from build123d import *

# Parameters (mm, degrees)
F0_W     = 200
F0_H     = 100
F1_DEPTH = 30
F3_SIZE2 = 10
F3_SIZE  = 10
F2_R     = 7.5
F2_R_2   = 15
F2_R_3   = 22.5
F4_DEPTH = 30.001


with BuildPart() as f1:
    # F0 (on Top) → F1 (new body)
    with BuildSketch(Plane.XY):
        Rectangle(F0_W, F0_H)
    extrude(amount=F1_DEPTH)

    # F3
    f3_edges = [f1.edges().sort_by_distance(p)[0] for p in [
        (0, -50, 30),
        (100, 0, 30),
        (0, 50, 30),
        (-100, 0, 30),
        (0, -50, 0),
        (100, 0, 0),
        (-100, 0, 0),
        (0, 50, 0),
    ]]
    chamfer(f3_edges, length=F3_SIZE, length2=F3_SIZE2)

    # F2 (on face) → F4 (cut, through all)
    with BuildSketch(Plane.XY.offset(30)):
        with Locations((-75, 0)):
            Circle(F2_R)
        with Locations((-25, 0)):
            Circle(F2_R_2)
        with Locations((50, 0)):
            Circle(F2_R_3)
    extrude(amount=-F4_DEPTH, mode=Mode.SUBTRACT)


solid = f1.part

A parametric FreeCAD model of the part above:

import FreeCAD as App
import Part
import Sketcher

V = App.Vector
Q = App.Units.Quantity


def edges_at(feature, points):
    """Names of the edges that pass closest to the given points."""
    edges = feature.Shape.Edges
    near = lambda p: min(range(len(edges)), key=lambda i: edges[i].distToShape(Part.Vertex(*p))[0])
    return sorted({f"Edge{near(p) + 1}" for p in points})


def add_polygon(sketch, points):
    """Adds a closed chain of lines whose ends are joined by coincident constraints."""
    first, n = sketch.GeometryCount, len(points)
    for a, b in zip(points, points[1:] + points[:1]):
        sketch.addGeometry(Part.LineSegment(App.Vector(*a, 0), App.Vector(*b, 0)), False)
    for i in range(n):
        sketch.addConstraint(Sketcher.Constraint("Coincident", first + i, 2, first + (i + 1) % n, 1))

doc = App.newDocument("Part")
body = doc.addObject("PartDesign::Body", "Body")

sketch1 = body.newObject("Sketcher::SketchObject", "Sketch")
sketch1.AttachmentSupport = (doc.getObject("XY_Plane"), [""])
sketch1.MapMode = "FlatFace"
add_polygon(sketch1, [(-100, 50), (-100, -50), (100, -50), (100, 50)])
sketch1.addConstraint([
    Sketcher.Constraint("Vertical", 0),
    Sketcher.Constraint("Horizontal", 1),
    Sketcher.Constraint("Vertical", 2),
    Sketcher.Constraint("Horizontal", 3),
    Sketcher.Constraint("Symmetric", 0, 2, 2, 2, -1, 1),
    Sketcher.Constraint("DistanceX", 1, 1, 1, 2, Q("200 mm")),
    Sketcher.Constraint("DistanceY", 0, 2, 0, 1, Q("100 mm")),
])
pad1 = body.newObject("PartDesign::Pad", "Pad")
pad1.Profile = sketch1
pad1.Length = 30
doc.recompute()

chamfer = body.newObject("PartDesign::Chamfer", "Chamfer")
chamfer.Base = (pad1, edges_at(pad1, [
    (0, -50, 30),
    (100, 0, 30),
    (0, 50, 30),
    (-100, 0, 30),
    (0, -50, 0),
    (100, 0, 0),
    (-100, 0, 0),
    (0, 50, 0),
]))
chamfer.ChamferType = "Two distances"
chamfer.Size = 10
chamfer.Size2 = 10

sketch2 = body.newObject("Sketcher::SketchObject", "Sketch001")
sketch2.AttachmentSupport = (doc.getObject("XY_Plane"), [""])
sketch2.MapMode = "FlatFace"
sketch2.AttachmentOffset = App.Placement(V(0, 0, 30), App.Rotation())
sketch2.addGeometry([
    Part.Circle(V(-75, 0, 0), V(0, 0, 1), 8),
    Part.Circle(V(-25, 0, 0), V(0, 0, 1), 15),
    Part.Circle(V(50, 0, 0), V(0, 0, 1), 22),
], False)
sketch2.addConstraint([
    Sketcher.Constraint("PointOnObject", 0, 3, -1),
    Sketcher.Constraint("PointOnObject", 1, 3, -1),
    Sketcher.Constraint("PointOnObject", 2, 3, -1),
    Sketcher.Constraint("Diameter", 0, Q("15 mm")),
    Sketcher.Constraint("Diameter", 1, Q("30 mm")),
    Sketcher.Constraint("Diameter", 2, Q("45 mm")),
    Sketcher.Constraint("DistanceX", 0, 3, -1, 1, Q("75 mm")),
    Sketcher.Constraint("DistanceX", 1, 3, -1, 1, Q("25 mm")),
    Sketcher.Constraint("DistanceX", -1, 1, 2, 3, Q("50 mm")),
])
pocket1 = body.newObject("PartDesign::Pocket", "Pocket")
pocket1.Profile = sketch2
pocket1.Type = "ThroughAll"

doc.recompute()
